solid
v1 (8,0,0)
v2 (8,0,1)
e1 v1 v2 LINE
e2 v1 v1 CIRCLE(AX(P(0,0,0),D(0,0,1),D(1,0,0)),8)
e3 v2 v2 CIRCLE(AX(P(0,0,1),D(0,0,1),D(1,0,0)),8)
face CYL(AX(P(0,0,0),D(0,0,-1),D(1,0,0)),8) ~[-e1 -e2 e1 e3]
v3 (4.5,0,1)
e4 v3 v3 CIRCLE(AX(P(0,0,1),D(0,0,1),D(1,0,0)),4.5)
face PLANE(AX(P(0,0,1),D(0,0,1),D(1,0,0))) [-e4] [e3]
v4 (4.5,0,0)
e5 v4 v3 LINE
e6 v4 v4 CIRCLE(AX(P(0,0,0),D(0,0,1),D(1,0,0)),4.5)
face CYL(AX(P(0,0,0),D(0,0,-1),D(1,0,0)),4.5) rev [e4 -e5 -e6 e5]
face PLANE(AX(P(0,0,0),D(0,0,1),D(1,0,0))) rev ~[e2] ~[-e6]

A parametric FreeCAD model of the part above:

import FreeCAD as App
import Part
import Sketcher
from FreeCAD import Vector

doc = App.newDocument("Part")
body = doc.addObject("PartDesign::Body", "Body")

sketch1 = doc.addObject("Sketcher::SketchObject", "Sketch")
body.addObject(sketch1)
sketch1.AttachmentSupport = (doc.XY_Plane, [""])
sketch1.MapMode = "FlatFace"
sketch1.addGeometry(Part.Circle(Vector(0, 0, 0), Vector(0, 0, 1), 8), False)
sketch1.addGeometry(Part.Circle(Vector(0, 0, 0), Vector(0, 0, 1), 4.5), False)
sketch1.addConstraint(Sketcher.Constraint("Coincident", 0, 3, -1, 1))
sketch1.addConstraint(Sketcher.Constraint("Coincident", 1, 3, -1, 1))
sketch1.addConstraint(Sketcher.Constraint("Diameter", 0, 16.0))
sketch1.addConstraint(Sketcher.Constraint("Diameter", 1, 9.0))
pad1 = doc.addObject("PartDesign::Pad", "Pad")
body.addObject(pad1)
pad1.Profile = sketch1
pad1.Length = 1

doc.recompute()
